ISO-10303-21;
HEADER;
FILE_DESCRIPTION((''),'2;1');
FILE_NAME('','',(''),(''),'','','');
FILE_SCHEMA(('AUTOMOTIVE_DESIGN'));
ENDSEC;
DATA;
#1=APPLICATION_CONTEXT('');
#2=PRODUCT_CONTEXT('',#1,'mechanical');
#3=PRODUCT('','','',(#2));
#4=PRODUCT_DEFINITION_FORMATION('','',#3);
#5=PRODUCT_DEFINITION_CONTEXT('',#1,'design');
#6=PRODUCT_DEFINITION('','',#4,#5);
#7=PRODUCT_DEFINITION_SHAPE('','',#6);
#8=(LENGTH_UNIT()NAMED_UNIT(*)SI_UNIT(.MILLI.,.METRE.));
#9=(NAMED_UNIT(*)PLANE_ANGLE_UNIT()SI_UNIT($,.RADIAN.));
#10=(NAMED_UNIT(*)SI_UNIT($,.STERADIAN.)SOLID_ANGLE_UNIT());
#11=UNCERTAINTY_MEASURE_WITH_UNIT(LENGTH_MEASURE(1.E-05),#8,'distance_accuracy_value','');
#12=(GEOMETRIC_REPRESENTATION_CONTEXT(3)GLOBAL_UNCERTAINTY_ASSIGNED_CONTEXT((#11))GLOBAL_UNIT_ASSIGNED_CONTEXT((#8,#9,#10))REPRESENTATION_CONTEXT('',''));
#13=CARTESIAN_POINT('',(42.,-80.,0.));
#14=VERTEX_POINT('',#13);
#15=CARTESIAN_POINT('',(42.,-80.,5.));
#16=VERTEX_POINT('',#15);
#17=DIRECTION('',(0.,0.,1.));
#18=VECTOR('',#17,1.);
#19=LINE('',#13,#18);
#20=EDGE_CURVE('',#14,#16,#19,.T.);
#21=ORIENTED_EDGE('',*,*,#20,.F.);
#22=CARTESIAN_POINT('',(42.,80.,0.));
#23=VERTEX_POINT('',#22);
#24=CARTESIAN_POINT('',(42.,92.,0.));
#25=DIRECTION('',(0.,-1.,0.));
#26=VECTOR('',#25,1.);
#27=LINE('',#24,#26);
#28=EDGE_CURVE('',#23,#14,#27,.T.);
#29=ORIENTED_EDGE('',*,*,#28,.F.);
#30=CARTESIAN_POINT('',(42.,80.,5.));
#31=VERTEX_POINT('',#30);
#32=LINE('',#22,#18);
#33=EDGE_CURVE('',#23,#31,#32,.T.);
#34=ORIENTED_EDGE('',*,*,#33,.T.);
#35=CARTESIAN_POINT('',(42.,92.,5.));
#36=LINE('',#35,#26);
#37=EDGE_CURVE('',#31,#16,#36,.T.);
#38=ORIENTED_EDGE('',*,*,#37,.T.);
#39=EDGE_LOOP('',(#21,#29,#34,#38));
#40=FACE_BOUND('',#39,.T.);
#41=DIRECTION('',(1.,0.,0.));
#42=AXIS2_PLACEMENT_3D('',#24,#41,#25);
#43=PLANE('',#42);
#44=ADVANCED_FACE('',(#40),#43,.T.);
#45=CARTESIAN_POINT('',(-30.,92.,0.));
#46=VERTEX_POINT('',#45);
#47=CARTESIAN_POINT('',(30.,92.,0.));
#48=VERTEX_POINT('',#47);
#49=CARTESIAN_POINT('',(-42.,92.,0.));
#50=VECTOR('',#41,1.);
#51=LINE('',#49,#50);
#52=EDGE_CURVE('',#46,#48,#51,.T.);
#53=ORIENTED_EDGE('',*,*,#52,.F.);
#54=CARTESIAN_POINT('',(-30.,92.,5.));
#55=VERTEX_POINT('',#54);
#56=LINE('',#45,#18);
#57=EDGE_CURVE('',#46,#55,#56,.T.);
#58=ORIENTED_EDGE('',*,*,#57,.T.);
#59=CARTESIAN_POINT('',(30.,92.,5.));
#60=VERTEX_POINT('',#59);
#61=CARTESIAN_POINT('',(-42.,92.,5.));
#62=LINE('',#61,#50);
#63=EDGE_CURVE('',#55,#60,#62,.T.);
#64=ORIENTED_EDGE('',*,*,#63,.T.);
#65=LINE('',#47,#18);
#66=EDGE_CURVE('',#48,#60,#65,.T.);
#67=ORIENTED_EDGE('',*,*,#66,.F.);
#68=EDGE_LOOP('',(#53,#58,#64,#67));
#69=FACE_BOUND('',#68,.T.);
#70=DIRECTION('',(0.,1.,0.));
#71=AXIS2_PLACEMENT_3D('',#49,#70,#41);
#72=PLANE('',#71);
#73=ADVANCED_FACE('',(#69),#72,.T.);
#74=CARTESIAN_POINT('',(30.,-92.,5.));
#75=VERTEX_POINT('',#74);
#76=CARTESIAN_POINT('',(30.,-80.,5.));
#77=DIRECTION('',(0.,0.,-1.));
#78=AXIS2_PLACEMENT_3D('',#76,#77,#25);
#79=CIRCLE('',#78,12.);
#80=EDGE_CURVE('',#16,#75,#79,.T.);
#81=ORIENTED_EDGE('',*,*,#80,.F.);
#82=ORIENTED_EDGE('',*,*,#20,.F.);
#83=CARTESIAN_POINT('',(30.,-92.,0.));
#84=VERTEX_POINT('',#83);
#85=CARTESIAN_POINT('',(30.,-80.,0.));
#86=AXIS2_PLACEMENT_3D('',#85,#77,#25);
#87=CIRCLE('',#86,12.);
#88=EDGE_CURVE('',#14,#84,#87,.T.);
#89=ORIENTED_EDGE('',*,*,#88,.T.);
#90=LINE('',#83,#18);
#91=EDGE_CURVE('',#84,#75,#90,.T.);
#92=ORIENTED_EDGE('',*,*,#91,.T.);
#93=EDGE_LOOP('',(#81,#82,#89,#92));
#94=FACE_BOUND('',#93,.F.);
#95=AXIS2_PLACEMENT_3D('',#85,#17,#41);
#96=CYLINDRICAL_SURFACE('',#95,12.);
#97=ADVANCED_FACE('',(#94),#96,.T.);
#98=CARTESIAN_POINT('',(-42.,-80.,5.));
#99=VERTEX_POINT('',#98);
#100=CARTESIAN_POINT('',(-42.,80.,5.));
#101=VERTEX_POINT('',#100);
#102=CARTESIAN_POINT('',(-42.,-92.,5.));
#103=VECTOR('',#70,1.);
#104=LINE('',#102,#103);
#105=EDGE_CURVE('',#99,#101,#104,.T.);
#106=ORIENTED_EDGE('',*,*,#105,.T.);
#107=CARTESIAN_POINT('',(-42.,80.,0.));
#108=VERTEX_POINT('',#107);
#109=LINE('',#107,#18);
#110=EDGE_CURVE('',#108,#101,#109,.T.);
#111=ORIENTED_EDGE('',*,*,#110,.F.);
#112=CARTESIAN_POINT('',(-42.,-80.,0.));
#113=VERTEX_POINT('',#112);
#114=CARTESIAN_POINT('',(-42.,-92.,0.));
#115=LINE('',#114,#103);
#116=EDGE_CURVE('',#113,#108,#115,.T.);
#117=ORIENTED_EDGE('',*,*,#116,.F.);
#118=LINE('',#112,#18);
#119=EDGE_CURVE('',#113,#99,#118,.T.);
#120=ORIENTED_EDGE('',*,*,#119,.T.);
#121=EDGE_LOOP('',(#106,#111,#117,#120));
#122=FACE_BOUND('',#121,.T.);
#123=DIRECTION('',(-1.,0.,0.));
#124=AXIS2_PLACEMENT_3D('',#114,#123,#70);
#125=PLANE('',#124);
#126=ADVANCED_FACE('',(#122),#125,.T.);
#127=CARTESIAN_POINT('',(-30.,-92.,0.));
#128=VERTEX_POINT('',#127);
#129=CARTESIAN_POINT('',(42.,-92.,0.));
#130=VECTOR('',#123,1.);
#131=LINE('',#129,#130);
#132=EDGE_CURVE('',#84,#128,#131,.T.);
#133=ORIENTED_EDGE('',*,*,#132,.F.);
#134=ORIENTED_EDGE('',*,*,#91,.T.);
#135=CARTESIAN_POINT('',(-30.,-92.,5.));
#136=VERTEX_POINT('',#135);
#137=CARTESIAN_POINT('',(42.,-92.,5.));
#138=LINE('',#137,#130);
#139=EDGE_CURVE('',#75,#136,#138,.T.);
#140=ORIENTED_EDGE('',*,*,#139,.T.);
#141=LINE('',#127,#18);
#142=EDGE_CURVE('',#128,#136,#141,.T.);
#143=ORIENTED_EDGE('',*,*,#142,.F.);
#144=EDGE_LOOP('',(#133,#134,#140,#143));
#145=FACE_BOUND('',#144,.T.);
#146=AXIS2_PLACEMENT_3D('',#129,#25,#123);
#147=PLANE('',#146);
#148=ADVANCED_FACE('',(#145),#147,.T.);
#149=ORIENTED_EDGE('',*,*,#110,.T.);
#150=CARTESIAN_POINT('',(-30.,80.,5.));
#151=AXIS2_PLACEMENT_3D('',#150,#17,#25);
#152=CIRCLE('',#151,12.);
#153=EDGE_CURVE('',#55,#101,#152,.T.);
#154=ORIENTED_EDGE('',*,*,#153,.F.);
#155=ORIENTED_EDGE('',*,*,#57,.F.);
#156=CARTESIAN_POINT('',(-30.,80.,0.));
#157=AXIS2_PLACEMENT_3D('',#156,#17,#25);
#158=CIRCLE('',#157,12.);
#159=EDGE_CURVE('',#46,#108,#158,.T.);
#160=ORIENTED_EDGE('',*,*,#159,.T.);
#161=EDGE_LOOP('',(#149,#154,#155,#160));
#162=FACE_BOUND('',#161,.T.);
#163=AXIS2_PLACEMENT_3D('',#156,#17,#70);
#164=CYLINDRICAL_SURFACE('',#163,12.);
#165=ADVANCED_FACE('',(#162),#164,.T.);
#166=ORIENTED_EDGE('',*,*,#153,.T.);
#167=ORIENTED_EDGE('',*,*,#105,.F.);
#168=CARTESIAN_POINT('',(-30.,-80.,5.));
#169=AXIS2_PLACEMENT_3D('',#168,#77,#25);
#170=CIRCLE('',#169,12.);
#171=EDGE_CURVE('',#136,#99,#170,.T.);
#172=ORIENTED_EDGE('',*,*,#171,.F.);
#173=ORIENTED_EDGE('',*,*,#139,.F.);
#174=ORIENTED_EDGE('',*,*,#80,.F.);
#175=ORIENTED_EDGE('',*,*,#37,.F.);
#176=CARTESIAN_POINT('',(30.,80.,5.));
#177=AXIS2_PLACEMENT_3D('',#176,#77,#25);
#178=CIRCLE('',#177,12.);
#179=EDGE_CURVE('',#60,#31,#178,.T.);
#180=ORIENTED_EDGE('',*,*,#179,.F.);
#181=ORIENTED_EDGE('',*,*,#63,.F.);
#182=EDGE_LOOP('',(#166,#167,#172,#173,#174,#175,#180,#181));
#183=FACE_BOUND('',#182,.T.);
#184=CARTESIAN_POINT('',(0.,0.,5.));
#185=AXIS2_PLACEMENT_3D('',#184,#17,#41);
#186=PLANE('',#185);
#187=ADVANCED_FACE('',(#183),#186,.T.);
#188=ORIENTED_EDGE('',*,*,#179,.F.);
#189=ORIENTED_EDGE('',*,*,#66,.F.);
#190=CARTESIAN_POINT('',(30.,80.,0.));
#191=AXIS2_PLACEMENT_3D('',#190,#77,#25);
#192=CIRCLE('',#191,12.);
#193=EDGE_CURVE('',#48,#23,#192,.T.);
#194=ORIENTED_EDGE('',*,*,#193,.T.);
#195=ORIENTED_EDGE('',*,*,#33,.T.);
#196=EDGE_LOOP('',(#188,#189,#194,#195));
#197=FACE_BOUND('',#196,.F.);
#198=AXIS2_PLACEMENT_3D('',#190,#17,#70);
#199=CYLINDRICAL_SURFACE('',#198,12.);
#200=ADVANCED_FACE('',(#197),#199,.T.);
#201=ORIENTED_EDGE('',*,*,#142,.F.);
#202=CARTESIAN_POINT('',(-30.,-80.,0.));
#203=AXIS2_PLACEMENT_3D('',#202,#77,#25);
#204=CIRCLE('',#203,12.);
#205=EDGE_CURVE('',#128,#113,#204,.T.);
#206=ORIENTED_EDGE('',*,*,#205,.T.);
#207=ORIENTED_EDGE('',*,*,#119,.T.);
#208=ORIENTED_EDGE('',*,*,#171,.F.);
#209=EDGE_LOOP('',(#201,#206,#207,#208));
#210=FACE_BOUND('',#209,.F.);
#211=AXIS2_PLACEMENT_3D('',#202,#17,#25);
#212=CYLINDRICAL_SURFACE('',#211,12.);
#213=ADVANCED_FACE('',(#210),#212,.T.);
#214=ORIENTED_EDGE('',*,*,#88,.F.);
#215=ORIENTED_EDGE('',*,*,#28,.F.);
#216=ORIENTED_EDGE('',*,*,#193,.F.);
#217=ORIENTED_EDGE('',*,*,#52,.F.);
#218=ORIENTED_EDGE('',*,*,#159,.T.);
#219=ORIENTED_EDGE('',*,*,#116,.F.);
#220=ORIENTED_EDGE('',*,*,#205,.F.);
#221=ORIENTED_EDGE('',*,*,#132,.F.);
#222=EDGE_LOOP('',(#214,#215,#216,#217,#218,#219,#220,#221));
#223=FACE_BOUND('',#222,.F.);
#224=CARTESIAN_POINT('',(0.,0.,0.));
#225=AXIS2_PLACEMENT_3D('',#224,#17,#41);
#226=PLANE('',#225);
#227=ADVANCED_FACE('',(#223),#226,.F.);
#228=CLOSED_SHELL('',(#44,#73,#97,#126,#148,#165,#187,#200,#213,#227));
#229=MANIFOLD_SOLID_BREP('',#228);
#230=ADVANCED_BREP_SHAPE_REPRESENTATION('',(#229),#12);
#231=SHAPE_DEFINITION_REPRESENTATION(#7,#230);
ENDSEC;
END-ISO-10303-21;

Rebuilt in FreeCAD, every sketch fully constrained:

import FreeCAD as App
import Part
import Sketcher
from FreeCAD import Vector


def edges_at(feature, points):
    """Names of the edges that pass closest to the given points."""
    edges = feature.Shape.Edges
    near = lambda p: min(range(len(edges)), key=lambda i: edges[i].distToShape(Part.Vertex(*p))[0])
    return sorted({f"Edge{near(p) + 1}" for p in points})

doc = App.newDocument("Part")
body = doc.addObject("PartDesign::Body", "Body")

# Sketch on XY plane
sketch1 = doc.addObject("Sketcher::SketchObject", "Sketch")
body.addObject(sketch1)
sketch1.AttachmentSupport = (doc.XY_Plane, [""])
sketch1.MapMode = "FlatFace"
sketch1.addGeometry([
    Part.LineSegment(Vector(42, 92, 0), Vector(-42, 92, 0)),
    Part.LineSegment(Vector(-42, 92, 0), Vector(-42, -92, 0)),
    Part.LineSegment(Vector(-42, -92, 0), Vector(42, -92, 0)),
    Part.LineSegment(Vector(42, -92, 0), Vector(42, 92, 0)),
], False)
sketch1.addConstraint([
    Sketcher.Constraint("Coincident", 0, 2, 1, 1),
    Sketcher.Constraint("Coincident", 1, 2, 2, 1),
    Sketcher.Constraint("Coincident", 2, 2, 3, 1),
    Sketcher.Constraint("Coincident", 3, 2, 0, 1),
    Sketcher.Constraint("Horizontal", 0),
    Sketcher.Constraint("Vertical", 1),
    Sketcher.Constraint("Horizontal", 2),
    Sketcher.Constraint("Vertical", 3),
    Sketcher.Constraint("Symmetric", 0, 2, 2, 2, -1, 1),
    Sketcher.Constraint("DistanceX", 0, 2, 0, 1, 84.0),
    Sketcher.Constraint("DistanceY", 1, 2, 1, 1, 184.0),
])
pad1 = doc.addObject("PartDesign::Pad", "Pad")
body.addObject(pad1)
pad1.Profile = sketch1
pad1.Length = 5
doc.recompute()

fillet = doc.addObject("PartDesign::Fillet", "Fillet")
body.addObject(fillet)
fillet.Base = (pad1, edges_at(pad1, [
    (42, 92, 2.5),
    (-42, 92, 2.5),
    (42, -92, 2.5),
    (-42, -92, 2.5),
]))
fillet.Radius = 12

doc.recompute()
